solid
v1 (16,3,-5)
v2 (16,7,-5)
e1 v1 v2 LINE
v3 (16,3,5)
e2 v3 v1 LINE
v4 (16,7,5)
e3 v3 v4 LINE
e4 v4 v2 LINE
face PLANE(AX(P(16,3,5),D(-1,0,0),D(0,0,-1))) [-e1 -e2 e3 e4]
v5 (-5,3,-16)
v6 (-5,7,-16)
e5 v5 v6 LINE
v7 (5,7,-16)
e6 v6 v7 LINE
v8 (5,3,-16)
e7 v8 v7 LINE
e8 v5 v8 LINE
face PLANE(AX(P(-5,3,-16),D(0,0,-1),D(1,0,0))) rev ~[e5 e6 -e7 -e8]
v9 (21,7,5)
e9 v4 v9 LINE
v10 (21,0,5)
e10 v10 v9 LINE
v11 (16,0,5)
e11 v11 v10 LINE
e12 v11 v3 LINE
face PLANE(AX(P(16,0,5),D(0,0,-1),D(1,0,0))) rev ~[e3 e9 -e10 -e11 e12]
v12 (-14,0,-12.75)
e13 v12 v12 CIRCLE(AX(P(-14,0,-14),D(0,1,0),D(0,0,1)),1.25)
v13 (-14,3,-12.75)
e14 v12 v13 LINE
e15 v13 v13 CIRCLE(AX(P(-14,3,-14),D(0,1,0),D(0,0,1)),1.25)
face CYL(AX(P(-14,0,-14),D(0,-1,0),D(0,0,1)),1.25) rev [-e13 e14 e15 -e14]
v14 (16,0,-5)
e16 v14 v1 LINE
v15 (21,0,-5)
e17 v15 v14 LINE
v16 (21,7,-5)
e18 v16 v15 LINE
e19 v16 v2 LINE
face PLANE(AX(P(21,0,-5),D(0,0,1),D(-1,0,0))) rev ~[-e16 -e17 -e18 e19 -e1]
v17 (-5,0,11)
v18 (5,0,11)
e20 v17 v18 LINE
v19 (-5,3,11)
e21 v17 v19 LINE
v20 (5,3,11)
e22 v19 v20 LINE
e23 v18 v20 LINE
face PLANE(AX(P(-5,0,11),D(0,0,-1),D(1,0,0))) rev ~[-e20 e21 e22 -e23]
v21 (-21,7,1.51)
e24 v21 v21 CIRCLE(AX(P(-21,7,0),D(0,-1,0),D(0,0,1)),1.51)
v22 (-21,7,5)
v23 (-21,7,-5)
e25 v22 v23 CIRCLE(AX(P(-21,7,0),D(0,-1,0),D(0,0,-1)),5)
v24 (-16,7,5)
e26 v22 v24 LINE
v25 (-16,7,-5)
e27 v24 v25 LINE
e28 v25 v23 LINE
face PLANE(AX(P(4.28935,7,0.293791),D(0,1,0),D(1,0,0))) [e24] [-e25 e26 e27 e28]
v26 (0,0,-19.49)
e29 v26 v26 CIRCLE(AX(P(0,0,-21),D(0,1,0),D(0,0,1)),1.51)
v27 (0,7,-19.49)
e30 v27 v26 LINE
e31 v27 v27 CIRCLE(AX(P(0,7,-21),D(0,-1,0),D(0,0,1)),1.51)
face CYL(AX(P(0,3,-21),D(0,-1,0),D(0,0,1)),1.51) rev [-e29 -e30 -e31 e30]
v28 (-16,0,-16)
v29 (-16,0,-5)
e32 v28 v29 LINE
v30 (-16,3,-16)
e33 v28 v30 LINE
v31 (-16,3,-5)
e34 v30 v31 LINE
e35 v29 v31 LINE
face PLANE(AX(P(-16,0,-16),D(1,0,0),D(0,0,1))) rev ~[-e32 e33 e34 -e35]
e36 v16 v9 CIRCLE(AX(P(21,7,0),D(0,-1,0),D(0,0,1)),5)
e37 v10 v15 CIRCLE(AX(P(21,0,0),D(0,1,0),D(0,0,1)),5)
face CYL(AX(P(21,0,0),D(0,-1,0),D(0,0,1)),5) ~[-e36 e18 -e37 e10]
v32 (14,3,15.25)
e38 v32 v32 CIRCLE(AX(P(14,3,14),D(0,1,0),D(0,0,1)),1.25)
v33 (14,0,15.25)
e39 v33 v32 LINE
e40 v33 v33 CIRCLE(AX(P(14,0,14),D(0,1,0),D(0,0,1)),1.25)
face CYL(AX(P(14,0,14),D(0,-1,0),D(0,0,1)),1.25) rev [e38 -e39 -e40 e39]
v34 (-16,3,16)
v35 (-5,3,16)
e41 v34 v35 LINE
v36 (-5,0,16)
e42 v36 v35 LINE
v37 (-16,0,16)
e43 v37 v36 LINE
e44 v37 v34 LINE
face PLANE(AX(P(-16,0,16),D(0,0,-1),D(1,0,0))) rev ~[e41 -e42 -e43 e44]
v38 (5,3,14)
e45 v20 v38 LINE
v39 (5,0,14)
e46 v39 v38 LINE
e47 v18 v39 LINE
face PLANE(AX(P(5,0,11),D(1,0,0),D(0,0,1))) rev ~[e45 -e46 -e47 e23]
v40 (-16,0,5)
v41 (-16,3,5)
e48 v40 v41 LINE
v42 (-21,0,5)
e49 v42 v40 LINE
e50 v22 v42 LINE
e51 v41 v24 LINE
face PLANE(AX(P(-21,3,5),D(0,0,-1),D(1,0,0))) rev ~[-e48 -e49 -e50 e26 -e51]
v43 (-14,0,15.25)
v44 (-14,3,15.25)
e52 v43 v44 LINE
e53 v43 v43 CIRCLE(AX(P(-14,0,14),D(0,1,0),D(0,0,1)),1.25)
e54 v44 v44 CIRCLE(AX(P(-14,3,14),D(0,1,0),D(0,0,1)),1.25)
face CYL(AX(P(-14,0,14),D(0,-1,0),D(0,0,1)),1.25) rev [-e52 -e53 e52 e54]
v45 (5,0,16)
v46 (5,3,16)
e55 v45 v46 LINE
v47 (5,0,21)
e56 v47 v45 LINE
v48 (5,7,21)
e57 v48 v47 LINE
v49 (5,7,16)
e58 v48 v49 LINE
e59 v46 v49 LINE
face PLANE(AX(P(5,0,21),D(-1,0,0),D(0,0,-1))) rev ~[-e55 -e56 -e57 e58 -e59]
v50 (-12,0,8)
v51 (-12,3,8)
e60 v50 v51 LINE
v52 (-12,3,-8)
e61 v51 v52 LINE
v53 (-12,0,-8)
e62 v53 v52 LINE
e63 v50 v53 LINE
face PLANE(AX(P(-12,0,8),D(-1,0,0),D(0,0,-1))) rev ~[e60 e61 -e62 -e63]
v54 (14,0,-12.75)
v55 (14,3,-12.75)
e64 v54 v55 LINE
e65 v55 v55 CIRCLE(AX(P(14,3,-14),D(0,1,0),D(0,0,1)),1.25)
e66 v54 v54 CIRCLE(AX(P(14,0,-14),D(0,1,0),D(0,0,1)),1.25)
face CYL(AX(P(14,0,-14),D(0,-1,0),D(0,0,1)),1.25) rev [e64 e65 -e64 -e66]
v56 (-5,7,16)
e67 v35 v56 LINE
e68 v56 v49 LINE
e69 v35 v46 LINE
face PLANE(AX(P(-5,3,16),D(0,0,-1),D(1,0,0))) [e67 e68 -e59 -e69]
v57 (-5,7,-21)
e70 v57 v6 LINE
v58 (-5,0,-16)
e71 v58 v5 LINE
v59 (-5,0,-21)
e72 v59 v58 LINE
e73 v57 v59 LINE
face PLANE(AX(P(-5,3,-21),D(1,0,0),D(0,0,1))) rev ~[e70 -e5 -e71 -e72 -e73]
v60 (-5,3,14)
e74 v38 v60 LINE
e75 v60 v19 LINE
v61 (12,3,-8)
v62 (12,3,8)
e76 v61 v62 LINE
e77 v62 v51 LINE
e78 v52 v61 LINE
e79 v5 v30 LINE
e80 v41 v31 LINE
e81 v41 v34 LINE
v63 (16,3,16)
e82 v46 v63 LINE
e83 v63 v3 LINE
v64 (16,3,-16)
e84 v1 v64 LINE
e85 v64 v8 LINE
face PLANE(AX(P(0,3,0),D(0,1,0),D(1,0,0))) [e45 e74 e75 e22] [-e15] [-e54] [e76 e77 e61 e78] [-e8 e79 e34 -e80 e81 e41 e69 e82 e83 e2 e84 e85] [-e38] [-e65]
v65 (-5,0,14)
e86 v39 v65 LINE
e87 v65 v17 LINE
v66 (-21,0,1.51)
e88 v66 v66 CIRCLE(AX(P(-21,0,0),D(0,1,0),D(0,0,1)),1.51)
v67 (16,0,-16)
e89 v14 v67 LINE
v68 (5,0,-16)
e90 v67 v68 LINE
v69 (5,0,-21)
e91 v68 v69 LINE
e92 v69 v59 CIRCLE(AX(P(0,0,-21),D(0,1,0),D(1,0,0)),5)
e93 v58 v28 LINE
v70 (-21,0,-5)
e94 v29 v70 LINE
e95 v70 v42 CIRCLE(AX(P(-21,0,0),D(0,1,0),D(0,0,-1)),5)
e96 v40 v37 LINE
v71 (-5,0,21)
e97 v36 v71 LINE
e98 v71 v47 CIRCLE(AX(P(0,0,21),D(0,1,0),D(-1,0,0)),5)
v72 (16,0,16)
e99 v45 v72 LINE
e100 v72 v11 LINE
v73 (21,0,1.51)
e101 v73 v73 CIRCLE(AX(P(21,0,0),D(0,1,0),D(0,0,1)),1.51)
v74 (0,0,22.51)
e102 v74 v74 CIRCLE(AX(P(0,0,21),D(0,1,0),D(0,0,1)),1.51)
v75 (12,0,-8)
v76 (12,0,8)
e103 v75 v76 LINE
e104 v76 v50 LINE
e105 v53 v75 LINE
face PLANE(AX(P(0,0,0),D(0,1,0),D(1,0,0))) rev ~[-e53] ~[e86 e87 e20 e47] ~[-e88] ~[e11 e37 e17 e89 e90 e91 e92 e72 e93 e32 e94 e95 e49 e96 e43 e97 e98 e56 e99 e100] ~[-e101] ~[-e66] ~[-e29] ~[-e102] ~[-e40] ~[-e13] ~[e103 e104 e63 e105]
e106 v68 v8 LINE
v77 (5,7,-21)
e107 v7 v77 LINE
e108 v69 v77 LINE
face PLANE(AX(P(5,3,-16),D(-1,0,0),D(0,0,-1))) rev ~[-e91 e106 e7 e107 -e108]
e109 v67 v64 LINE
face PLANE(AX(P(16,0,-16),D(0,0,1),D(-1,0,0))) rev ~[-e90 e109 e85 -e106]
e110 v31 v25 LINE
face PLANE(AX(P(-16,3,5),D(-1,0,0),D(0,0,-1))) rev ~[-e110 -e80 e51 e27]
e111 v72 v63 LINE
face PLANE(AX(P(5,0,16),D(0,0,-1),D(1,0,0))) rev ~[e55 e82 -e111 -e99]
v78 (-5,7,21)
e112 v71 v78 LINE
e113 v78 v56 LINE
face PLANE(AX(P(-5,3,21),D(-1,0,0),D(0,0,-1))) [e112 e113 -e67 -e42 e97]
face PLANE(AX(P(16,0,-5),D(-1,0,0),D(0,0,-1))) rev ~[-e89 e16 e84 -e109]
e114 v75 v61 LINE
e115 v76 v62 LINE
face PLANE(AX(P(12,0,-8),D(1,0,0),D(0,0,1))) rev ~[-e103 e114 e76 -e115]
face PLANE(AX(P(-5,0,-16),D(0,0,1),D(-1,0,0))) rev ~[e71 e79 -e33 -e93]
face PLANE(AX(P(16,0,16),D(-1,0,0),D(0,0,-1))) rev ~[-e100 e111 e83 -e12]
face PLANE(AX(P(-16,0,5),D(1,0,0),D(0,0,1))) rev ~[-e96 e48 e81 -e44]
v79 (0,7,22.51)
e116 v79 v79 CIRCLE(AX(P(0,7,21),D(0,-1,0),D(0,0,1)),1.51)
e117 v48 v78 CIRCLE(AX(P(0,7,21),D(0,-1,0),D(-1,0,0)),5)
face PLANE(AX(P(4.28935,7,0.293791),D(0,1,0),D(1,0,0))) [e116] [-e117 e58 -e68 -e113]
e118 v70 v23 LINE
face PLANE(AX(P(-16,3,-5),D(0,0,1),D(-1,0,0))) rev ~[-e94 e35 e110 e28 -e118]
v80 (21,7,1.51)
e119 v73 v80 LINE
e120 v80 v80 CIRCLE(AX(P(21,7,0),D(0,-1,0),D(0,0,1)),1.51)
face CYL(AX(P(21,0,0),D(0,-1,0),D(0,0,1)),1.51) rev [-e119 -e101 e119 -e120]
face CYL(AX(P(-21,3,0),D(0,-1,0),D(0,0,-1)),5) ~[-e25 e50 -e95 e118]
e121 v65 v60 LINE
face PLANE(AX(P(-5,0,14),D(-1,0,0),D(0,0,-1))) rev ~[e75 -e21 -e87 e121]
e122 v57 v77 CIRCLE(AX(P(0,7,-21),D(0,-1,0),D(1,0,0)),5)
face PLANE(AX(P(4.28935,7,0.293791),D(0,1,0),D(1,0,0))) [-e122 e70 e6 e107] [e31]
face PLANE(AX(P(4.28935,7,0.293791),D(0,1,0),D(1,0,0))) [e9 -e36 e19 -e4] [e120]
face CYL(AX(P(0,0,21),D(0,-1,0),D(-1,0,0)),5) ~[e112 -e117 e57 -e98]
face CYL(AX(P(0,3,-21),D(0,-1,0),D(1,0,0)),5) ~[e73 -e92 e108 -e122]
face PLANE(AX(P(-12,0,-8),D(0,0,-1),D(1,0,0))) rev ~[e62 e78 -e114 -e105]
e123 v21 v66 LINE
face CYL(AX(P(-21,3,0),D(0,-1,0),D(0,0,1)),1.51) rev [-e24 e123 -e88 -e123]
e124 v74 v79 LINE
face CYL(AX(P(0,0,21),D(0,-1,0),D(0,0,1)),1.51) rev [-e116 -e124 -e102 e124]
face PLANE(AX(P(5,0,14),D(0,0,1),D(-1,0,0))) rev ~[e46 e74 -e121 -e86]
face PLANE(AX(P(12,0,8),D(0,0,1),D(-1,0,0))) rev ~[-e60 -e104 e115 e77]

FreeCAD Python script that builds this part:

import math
import FreeCAD as App
import Part
import Sketcher

V = App.Vector

doc = App.newDocument("Part")
body = doc.addObject("PartDesign::Body", "Body")

# Sketch on XZ plane
sketch1 = body.newObject("Sketcher::SketchObject", "Sketch")
sketch1.AttachmentSupport = (doc.getObject("XZ_Plane"), [""])
sketch1.MapMode = "FlatFace"
sketch1.addGeometry([
    Part.LineSegment(V(21, -5, 0), V(16, -5, 0)),  # 0
    Part.LineSegment(V(16, -5, 0), V(16, -16, 0)),  # 1
    Part.LineSegment(V(16, -16, 0), V(5, -16, 0)),  # 2
    Part.LineSegment(V(5, -16, 0), V(5, -21, 0)),  # 3
    Part.ArcOfCircle(Part.Circle(V(0, -21, 0), V(0, 0, 1), 5), math.radians(180), math.radians(360)),  # 4
    Part.LineSegment(V(-5, -21, 0), V(-5, -16, 0)),  # 5
    Part.LineSegment(V(-5, -16, 0), V(-16, -16, 0)),  # 6
    Part.LineSegment(V(-16, -16, 0), V(-16, -5, 0)),  # 7
    Part.LineSegment(V(-16, -5, 0), V(-21, -5, 0)),  # 8
    Part.ArcOfCircle(Part.Circle(V(-21, 0, 0), V(0, 0, 1), 5), math.radians(90), math.radians(270)),  # 9
    Part.LineSegment(V(-21, 5, 0), V(-16, 5, 0)),  # 10
    Part.LineSegment(V(-16, 5, 0), V(-16, 16, 0)),  # 11
    Part.LineSegment(V(-16, 16, 0), V(-5, 16, 0)),  # 12
    Part.LineSegment(V(-5, 16, 0), V(-5, 21, 0)),  # 13
    Part.ArcOfCircle(Part.Circle(V(0, 21, 0), V(0, 0, 1), 5), math.radians(0), math.radians(180)),  # 14
    Part.LineSegment(V(5, 21, 0), V(5, 16, 0)),  # 15
    Part.LineSegment(V(5, 16, 0), V(16, 16, 0)),  # 16
    Part.LineSegment(V(16, 16, 0), V(16, 5, 0)),  # 17
    Part.LineSegment(V(16, 5, 0), V(21, 5, 0)),  # 18
    Part.ArcOfCircle(Part.Circle(V(21, 0, 0), V(0, 0, 1), 5), math.radians(-90), math.radians(90)),  # 19
    Part.Circle(V(-14, 14, 0), V(0, 0, 1), 1.25),  # 20
    Part.Circle(V(0, 21, 0), V(0, 0, 1), 1.51),  # 21
    Part.LineSegment(V(-5, 11, 0), V(5, 11, 0)),  # 22
    Part.LineSegment(V(5, 11, 0), V(5, 14, 0)),  # 23
    Part.LineSegment(V(5, 14, 0), V(-5, 14, 0)),  # 24
    Part.LineSegment(V(-5, 14, 0), V(-5, 11, 0)),  # 25
    Part.Circle(V(14, 14, 0), V(0, 0, 1), 1.25),  # 26
    Part.Circle(V(-21, 0, 0), V(0, 0, 1), 1.51),  # 27
    Part.Circle(V(-14, -14, 0), V(0, 0, 1), 1.25),  # 28
    Part.LineSegment(V(-12, 8, 0), V(-12, -8, 0)),  # 29
    Part.LineSegment(V(-12, -8, 0), V(12, -8, 0)),  # 30
    Part.LineSegment(V(12, -8, 0), V(12, 8, 0)),  # 31
    Part.LineSegment(V(12, 8, 0), V(-12, 8, 0)),  # 32
    Part.Circle(V(21, 0, 0), V(0, 0, 1), 1.51),  # 33
    Part.Circle(V(0, -21, 0), V(0, 0, 1), 1.51),  # 34
    Part.Circle(V(14, -14, 0), V(0, 0, 1), 1.25),  # 35
], False)
sketch1.addConstraint([
    Sketcher.Constraint("Coincident", 0, 2, 1, 1),
    Sketcher.Constraint("Coincident", 1, 2, 2, 1),
    Sketcher.Constraint("Coincident", 2, 2, 3, 1),
    Sketcher.Constraint("Tangent", 3, 2, 4, 2),
    Sketcher.Constraint("Tangent", 4, 1, 5, 1),
    Sketcher.Constraint("Coincident", 5, 2, 6, 1),
    Sketcher.Constraint("Coincident", 6, 2, 7, 1),
    Sketcher.Constraint("Coincident", 7, 2, 8, 1),
    Sketcher.Constraint("Tangent", 8, 2, 9, 2),
    Sketcher.Constraint("Tangent", 9, 1, 10, 1),
    Sketcher.Constraint("Coincident", 10, 2, 11, 1),
    Sketcher.Constraint("Coincident", 11, 2, 12, 1),
    Sketcher.Constraint("Coincident", 12, 2, 13, 1),
    Sketcher.Constraint("Tangent", 13, 2, 14, 2),
    Sketcher.Constraint("Tangent", 14, 1, 15, 1),
    Sketcher.Constraint("Coincident", 15, 2, 16, 1),
    Sketcher.Constraint("Coincident", 16, 2, 17, 1),
    Sketcher.Constraint("Coincident", 17, 2, 18, 1),
    Sketcher.Constraint("Tangent", 18, 2, 19, 2),
    Sketcher.Constraint("Tangent", 19, 1, 0, 1),
    Sketcher.Constraint("Coincident", 22, 2, 23, 1),
    Sketcher.Constraint("Coincident", 23, 2, 24, 1),
    Sketcher.Constraint("Coincident", 24, 2, 25, 1),
    Sketcher.Constraint("Coincident", 25, 2, 22, 1),
    Sketcher.Constraint("Coincident", 29, 2, 30, 1),
    Sketcher.Constraint("Coincident", 30, 2, 31, 1),
    Sketcher.Constraint("Coincident", 31, 2, 32, 1),
    Sketcher.Constraint("Coincident", 32, 2, 29, 1),
    Sketcher.Constraint("Horizontal", 0),
    Sketcher.Constraint("Vertical", 1),
    Sketcher.Constraint("Horizontal", 2),
    Sketcher.Constraint("Vertical", 3),
    Sketcher.Constraint("Vertical", 5),
    Sketcher.Constraint("Horizontal", 6),
    Sketcher.Constraint("Vertical", 7),
    Sketcher.Constraint("Horizontal", 8),
    Sketcher.Constraint("Horizontal", 10),
    Sketcher.Constraint("Vertical", 11),
    Sketcher.Constraint("Horizontal", 12),
    Sketcher.Constraint("Vertical", 13),
    Sketcher.Constraint("Vertical", 15),
    Sketcher.Constraint("Horizontal", 16),
    Sketcher.Constraint("Vertical", 17),
    Sketcher.Constraint("Horizontal", 18),
    Sketcher.Constraint("Horizontal", 22),
    Sketcher.Constraint("Vertical", 23),
    Sketcher.Constraint("Horizontal", 24),
    Sketcher.Constraint("Vertical", 25),
    Sketcher.Constraint("Vertical", 29),
    Sketcher.Constraint("Horizontal", 30),
    Sketcher.Constraint("Vertical", 31),
    Sketcher.Constraint("Horizontal", 32),
    Sketcher.Constraint("Coincident", 21, 3, 14, 3),
    Sketcher.Constraint("Coincident", 27, 3, 9, 3),
    Sketcher.Constraint("Coincident", 33, 3, 19, 3),
    Sketcher.Constraint("Coincident", 34, 3, 4, 3),
    Sketcher.Constraint("Equal", 4, 9),
    Sketcher.Constraint("Equal", 9, 14),
    Sketcher.Constraint("Equal", 14, 19),
    Sketcher.Constraint("Equal", 20, 26),
    Sketcher.Constraint("Equal", 21, 27),
    Sketcher.Constraint("Equal", 26, 28),
    Sketcher.Constraint("Equal", 27, 33),
    Sketcher.Constraint("Equal", 33, 34),
    Sketcher.Constraint("Equal", 28, 35),
    Sketcher.Constraint("Symmetric", 4, 3, 14, 3, -1, 1),
    Sketcher.Constraint("Symmetric", 9, 3, 19, 3, -1, 1),
    Sketcher.Constraint("Symmetric", 26, 3, 28, 3, -1, 1),
    Sketcher.Constraint("Symmetric", 20, 3, 35, 3, -1, 1),
    Sketcher.Constraint("Symmetric", 1, 2, 11, 2, -1, 1),
    Sketcher.Constraint("Symmetric", 6, 2, 16, 2, -1, 1),
    Sketcher.Constraint("Symmetric", 29, 2, 31, 2, -1, 1),
    Sketcher.Constraint("Symmetric", 20, 3, 26, 3, -2),
    Sketcher.Constraint("Symmetric", 2, 2, 5, 2, -2),
    Sketcher.Constraint("Symmetric", 0, 2, 7, 2, -2),
    Sketcher.Constraint("Horizontal", 26, 3, 23, 2),
    Sketcher.Constraint("Vertical", 15, 2, 22, 2),
    Sketcher.Constraint("Vertical", 13, 2, 24, 2),
    Sketcher.Constraint("Equal", 16, 1),
    Sketcher.Constraint("Equal", 18, 3),
    Sketcher.Constraint("Radius", 4, 5.0),
    Sketcher.Constraint("Diameter", 20, 2.5),
    Sketcher.Constraint("Diameter", 21, 3.02),
    Sketcher.Constraint("DistanceX", 0, 2, 0, 1, 5.0),
    Sketcher.Constraint("DistanceX", 2, 2, 2, 1, 11.0),
    Sketcher.Constraint("DistanceX", 30, 1, 30, 2, 24.0),
    Sketcher.Constraint("DistanceY", 23, 1, 23, 2, 3.0),
    Sketcher.Constraint("DistanceY", 29, 2, 29, 1, 16.0),
    Sketcher.Constraint("DistanceX", 20, 3, -1, 1, 14.0),
    Sketcher.Constraint("DistanceY", -1, 1, 20, 3, 14.0),
])
pad1 = body.newObject("PartDesign::Pad", "Pad")
pad1.Profile = sketch1
pad1.Length = 3
pad1.Reversed = True

# Sketch on XZ plane
sketch2 = body.newObject("Sketcher::SketchObject", "Sketch001")
sketch2.AttachmentSupport = (doc.getObject("XZ_Plane"), [""])
sketch2.MapMode = "FlatFace"
sketch2.AttachmentOffset = App.Placement(V(0, 0, -3), App.Rotation())
sketch2.addGeometry([
    Part.LineSegment(V(-16, 5, 0), V(-16, -5, 0)),  # 0
    Part.LineSegment(V(-16, -5, 0), V(-21, -5, 0)),  # 1
    Part.ArcOfCircle(Part.Circle(V(-21, 0, 0), V(0, 0, 1), 5), math.radians(90), math.radians(270)),  # 2
    Part.LineSegment(V(-21, 5, 0), V(-16, 5, 0)),  # 3
    Part.Circle(V(-21, 0, 0), V(0, 0, 1), 1.51),  # 4
], False)
sketch2.addConstraint([
    Sketcher.Constraint("Coincident", 0, 2, 1, 1),
    Sketcher.Constraint("Tangent", 1, 2, 2, 2),
    Sketcher.Constraint("Tangent", 2, 1, 3, 1),
    Sketcher.Constraint("Coincident", 3, 2, 0, 1),
    Sketcher.Constraint("Vertical", 0),
    Sketcher.Constraint("Horizontal", 1),
    Sketcher.Constraint("Horizontal", 3),
    Sketcher.Constraint("Coincident", 4, 3, 2, 3),
    Sketcher.Constraint("PointOnObject", 2, 3, -1),
    Sketcher.Constraint("Radius", 2, 5.0),
    Sketcher.Constraint("Diameter", 4, 3.02),
    Sketcher.Constraint("DistanceX", 1, 2, 1, 1, 5.0),
    Sketcher.Constraint("DistanceX", 2, 3, -1, 1, 21.0),
])
pad2 = body.newObject("PartDesign::Pad", "Pad001")
pad2.Profile = sketch2
pad2.Length = 4.5
pad2.Reversed = True

# Sketch on XZ plane
sketch3 = body.newObject("Sketcher::SketchObject", "Sketch002")
sketch3.AttachmentSupport = (doc.getObject("XZ_Plane"), [""])
sketch3.MapMode = "FlatFace"
sketch3.AttachmentOffset = App.Placement(V(0, 0, -3), App.Rotation())
sketch3.addGeometry([
    Part.LineSegment(V(-5, -16, 0), V(5, -16, 0)),  # 0
    Part.LineSegment(V(5, -16, 0), V(5, -21, 0)),  # 1
    Part.ArcOfCircle(Part.Circle(V(0, -21, 0), V(0, 0, 1), 5), math.radians(180), math.radians(360)),  # 2
    Part.LineSegment(V(-5, -21, 0), V(-5, -16, 0)),  # 3
    Part.Circle(V(0, -21, 0), V(0, 0, 1), 1.51),  # 4
    Part.LineSegment(V(16, -5, 0), V(16, 5, 0)),  # 5
    Part.LineSegment(V(16, 5, 0), V(21, 5, 0)),  # 6
    Part.ArcOfCircle(Part.Circle(V(21, 0, 0), V(0, 0, 1), 5), math.radians(-90), math.radians(90)),  # 7
    Part.LineSegment(V(21, -5, 0), V(16, -5, 0)),  # 8
    Part.Circle(V(21, 0, 0), V(0, 0, 1), 1.51),  # 9
    Part.LineSegment(V(5, 16, 0), V(-5, 16, 0)),  # 10
    Part.LineSegment(V(-5, 16, 0), V(-5, 21, 0)),  # 11
    Part.ArcOfCircle(Part.Circle(V(0, 21, 0), V(0, 0, 1), 5), math.radians(0), math.radians(180)),  # 12
    Part.LineSegment(V(5, 21, 0), V(5, 16, 0)),  # 13
    Part.Circle(V(0, 21, 0), V(0, 0, 1), 1.51),  # 14
], False)
sketch3.addConstraint([
    Sketcher.Constraint("Coincident", 0, 2, 1, 1),
    Sketcher.Constraint("Tangent", 1, 2, 2, 2),
    Sketcher.Constraint("Tangent", 2, 1, 3, 1),
    Sketcher.Constraint("Coincident", 3, 2, 0, 1),
    Sketcher.Constraint("Coincident", 5, 2, 6, 1),
    Sketcher.Constraint("Tangent", 6, 2, 7, 2),
    Sketcher.Constraint("Tangent", 7, 1, 8, 1),
    Sketcher.Constraint("Coincident", 8, 2, 5, 1),
    Sketcher.Constraint("Coincident", 10, 2, 11, 1),
    Sketcher.Constraint("Tangent", 11, 2, 12, 2),
    Sketcher.Constraint("Tangent", 12, 1, 13, 1),
    Sketcher.Constraint("Coincident", 13, 2, 10, 1),
    Sketcher.Constraint("Horizontal", 0),
    Sketcher.Constraint("Vertical", 1),
    Sketcher.Constraint("Vertical", 3),
    Sketcher.Constraint("Vertical", 5),
    Sketcher.Constraint("Horizontal", 6),
    Sketcher.Constraint("Horizontal", 8),
    Sketcher.Constraint("Horizontal", 10),
    Sketcher.Constraint("Vertical", 11),
    Sketcher.Constraint("Vertical", 13),
    Sketcher.Constraint("Coincident", 4, 3, 2, 3),
    Sketcher.Constraint("Coincident", 9, 3, 7, 3),
    Sketcher.Constraint("Coincident", 14, 3, 12, 3),
    Sketcher.Constraint("Equal", 2, 7),
    Sketcher.Constraint("Equal", 4, 9),
    Sketcher.Constraint("Equal", 7, 12),
    Sketcher.Constraint("Equal", 9, 14),
    Sketcher.Constraint("Symmetric", 2, 3, 12, 3, -1, 1),
    Sketcher.Constraint("Symmetric", 3, 2, 10, 2, -1),
    Sketcher.Constraint("PointOnObject", 7, 3, -1),
    Sketcher.Constraint("Equal", 8, 1),
    Sketcher.Constraint("Radius", 2, 5.0),
    Sketcher.Constraint("Diameter", 4, 3.02),
    Sketcher.Constraint("DistanceX", 6, 1, 6, 2, 5.0),
    Sketcher.Constraint("DistanceY", 2, 3, -1, 1, 21.0),
    Sketcher.Constraint("DistanceX", -1, 1, 7, 3, 21.0),
])
pad3 = body.newObject("PartDesign::Pad", "Pad002")
pad3.Profile = sketch3
pad3.Length = 4.5
pad3.Reversed = True

# Sketch on XZ plane
sketch4 = body.newObject("Sketcher::SketchObject", "Sketch003")
sketch4.AttachmentSupport = (doc.getObject("XZ_Plane"), [""])
sketch4.MapMode = "FlatFace"
sketch4.AttachmentOffset = App.Placement(V(0, 0, -7.5), App.Rotation())
sketch4.addGeometry([
    Part.LineSegment(V(-42.717225, -32.66957, 0), V(-42.717225, 33.257152, 0)),
    Part.LineSegment(V(-42.717225, 33.257152, 0), V(51.295925, 33.257152, 0)),
    Part.LineSegment(V(51.295925, 33.257152, 0), V(51.295925, -32.66957, 0)),
    Part.LineSegment(V(51.295925, -32.66957, 0), V(-42.717225, -32.66957, 0)),
], False)
sketch4.addConstraint([
    Sketcher.Constraint("Coincident", 0, 2, 1, 1),
    Sketcher.Constraint("Coincident", 1, 2, 2, 1),
    Sketcher.Constraint("Coincident", 2, 2, 3, 1),
    Sketcher.Constraint("Coincident", 3, 2, 0, 1),
    Sketcher.Constraint("Vertical", 0),
    Sketcher.Constraint("Horizontal", 1),
    Sketcher.Constraint("Vertical", 2),
    Sketcher.Constraint("Horizontal", 3),
    Sketcher.Constraint("DistanceX", 1, 1, 1, 2, 94.013151),
    Sketcher.Constraint("DistanceY", 0, 1, 0, 2, 65.926722),
    Sketcher.Constraint("DistanceY", -1, 1, 0, 2, 33.257152),
    Sketcher.Constraint("DistanceX", 0, 2, -1, 1, 42.717225),
])
pocket1 = body.newObject("PartDesign::Pocket", "Pocket")
pocket1.Profile = sketch4
pocket1.Length = 0.5
pocket1.Reversed = True

doc.recompute()
